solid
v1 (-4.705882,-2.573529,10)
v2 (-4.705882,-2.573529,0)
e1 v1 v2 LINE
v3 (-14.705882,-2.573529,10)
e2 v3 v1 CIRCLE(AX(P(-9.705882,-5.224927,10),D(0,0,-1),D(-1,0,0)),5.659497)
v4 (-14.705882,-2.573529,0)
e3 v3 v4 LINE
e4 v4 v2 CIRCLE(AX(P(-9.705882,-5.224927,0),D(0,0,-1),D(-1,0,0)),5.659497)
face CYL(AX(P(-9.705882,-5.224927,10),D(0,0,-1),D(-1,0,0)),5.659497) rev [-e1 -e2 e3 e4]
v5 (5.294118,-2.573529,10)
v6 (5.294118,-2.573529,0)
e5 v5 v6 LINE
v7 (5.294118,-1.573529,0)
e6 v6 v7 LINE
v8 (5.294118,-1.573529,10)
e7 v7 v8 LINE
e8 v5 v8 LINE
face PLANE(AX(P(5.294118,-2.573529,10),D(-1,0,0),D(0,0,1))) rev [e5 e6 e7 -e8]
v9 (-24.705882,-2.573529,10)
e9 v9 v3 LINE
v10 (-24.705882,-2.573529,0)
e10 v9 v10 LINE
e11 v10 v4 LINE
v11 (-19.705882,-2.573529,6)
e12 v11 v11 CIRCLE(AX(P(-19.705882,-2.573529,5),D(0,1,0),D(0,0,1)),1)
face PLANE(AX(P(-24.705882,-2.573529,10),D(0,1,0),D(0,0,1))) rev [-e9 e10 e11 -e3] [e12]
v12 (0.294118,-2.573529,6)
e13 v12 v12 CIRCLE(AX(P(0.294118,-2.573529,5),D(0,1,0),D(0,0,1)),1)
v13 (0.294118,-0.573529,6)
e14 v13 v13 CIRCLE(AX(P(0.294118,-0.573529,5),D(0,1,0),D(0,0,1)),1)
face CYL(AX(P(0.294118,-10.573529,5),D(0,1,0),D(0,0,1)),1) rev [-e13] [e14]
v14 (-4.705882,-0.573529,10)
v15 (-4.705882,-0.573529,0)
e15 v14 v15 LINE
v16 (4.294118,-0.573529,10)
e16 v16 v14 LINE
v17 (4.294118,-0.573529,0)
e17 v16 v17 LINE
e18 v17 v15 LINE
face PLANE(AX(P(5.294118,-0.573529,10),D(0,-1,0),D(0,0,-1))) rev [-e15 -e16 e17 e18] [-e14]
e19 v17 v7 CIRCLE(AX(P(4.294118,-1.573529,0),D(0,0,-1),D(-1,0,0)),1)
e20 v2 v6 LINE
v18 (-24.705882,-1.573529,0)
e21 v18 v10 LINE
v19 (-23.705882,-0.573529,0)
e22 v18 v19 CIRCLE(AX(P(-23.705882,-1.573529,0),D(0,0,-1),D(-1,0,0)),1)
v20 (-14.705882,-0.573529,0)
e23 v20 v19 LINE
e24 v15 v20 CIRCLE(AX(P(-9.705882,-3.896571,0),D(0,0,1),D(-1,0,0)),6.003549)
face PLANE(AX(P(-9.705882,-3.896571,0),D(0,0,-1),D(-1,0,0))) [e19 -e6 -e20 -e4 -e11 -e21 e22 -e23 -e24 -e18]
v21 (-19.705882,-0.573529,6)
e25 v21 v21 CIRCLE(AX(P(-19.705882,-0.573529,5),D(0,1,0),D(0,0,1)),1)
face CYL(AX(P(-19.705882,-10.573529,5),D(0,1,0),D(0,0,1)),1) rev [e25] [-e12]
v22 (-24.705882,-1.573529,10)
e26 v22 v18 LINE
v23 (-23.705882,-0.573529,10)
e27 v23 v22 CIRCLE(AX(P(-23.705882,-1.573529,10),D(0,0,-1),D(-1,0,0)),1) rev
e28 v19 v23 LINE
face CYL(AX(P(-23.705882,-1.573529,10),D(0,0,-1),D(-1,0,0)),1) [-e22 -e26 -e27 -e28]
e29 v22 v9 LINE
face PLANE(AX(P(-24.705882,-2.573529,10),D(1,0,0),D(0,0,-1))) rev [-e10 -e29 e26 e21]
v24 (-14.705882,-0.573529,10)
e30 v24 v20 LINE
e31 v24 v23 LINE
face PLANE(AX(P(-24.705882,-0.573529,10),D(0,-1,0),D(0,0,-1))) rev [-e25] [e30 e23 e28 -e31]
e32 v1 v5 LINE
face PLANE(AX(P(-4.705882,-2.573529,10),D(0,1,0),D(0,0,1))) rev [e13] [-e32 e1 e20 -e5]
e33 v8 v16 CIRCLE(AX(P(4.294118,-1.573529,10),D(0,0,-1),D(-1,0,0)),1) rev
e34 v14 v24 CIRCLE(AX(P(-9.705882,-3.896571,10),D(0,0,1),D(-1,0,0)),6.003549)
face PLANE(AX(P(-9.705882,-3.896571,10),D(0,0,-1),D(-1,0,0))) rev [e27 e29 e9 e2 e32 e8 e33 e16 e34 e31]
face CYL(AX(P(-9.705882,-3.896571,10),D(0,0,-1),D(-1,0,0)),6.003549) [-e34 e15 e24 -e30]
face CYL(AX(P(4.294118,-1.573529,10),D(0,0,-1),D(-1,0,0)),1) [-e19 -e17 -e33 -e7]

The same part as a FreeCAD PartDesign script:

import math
import FreeCAD as App
import Part
import Sketcher

V = App.Vector


def edges_at(feature, points):
    """Names of the edges that pass closest to the given points."""
    edges = feature.Shape.Edges
    near = lambda p: min(range(len(edges)), key=lambda i: edges[i].distToShape(Part.Vertex(*p))[0])
    return sorted({f"Edge{near(p) + 1}" for p in points})

doc = App.newDocument("Part")
body = doc.addObject("PartDesign::Body", "Body")

# Sketch on XY plane
sketch1 = body.newObject("Sketcher::SketchObject", "Sketch")
sketch1.AttachmentSupport = (doc.getObject("XY_Plane"), [""])
sketch1.MapMode = "FlatFace"
sketch1.addGeometry([
    Part.LineSegment(V(-24.705882, -2.573529, 0), V(-14.705882, -2.573529, 0)),  # 0
    Part.ArcOfCircle(Part.Circle(V(-9.705882, -5.224927, 0), V(0, 0, 1), 5.659497), math.radians(27.936087), math.radians(152.063913)),  # 1
    Part.LineSegment(V(-4.705882, -2.573529, 0), V(5.294118, -2.573529, 0)),  # 2
    Part.LineSegment(V(5.294118, -2.573529, 0), V(5.294118, -0.573529, 0)),  # 3
    Part.LineSegment(V(5.294118, -0.573529, 0), V(-4.705882, -0.573529, 0)),  # 4
    Part.ArcOfCircle(Part.Circle(V(-9.705882, -3.896571, 0), V(0, 0, 1), 6.003549), math.radians(33.608343), math.radians(146.391657)),  # 5
    Part.LineSegment(V(-14.705882, -0.573529, 0), V(-24.705882, -0.573529, 0)),  # 6
    Part.LineSegment(V(-24.705882, -0.573529, 0), V(-24.705882, -2.573529, 0)),  # 7
], False)
sketch1.addConstraint([
    Sketcher.Constraint("Coincident", 0, 2, 1, 2),
    Sketcher.Constraint("Coincident", 1, 1, 2, 1),
    Sketcher.Constraint("Coincident", 2, 2, 3, 1),
    Sketcher.Constraint("Coincident", 3, 2, 4, 1),
    Sketcher.Constraint("Coincident", 4, 2, 5, 1),
    Sketcher.Constraint("Coincident", 5, 2, 6, 1),
    Sketcher.Constraint("Coincident", 6, 2, 7, 1),
    Sketcher.Constraint("Coincident", 7, 2, 0, 1),
    Sketcher.Constraint("Horizontal", 0),
    Sketcher.Constraint("Horizontal", 2),
    Sketcher.Constraint("Vertical", 3),
    Sketcher.Constraint("Horizontal", 4),
    Sketcher.Constraint("Horizontal", 6),
    Sketcher.Constraint("Vertical", 7),
    Sketcher.Constraint("Horizontal", 0, 2, 1, 1),
    Sketcher.Constraint("Horizontal", 4, 2, 5, 2),
    Sketcher.Constraint("Vertical", 1, 3, 5, 3),
    Sketcher.Constraint("Vertical", 1, 1, 4, 2),
    Sketcher.Constraint("Equal", 0, 2),
    Sketcher.Constraint("DistanceX", 0, 1, 0, 2, 10.0),
    Sketcher.Constraint("DistanceY", 3, 1, 3, 2, 2.0),
    Sketcher.Constraint("DistanceX", 0, 2, 5, 3, 5.0),
    Sketcher.Constraint("Radius", 5, 6.003549),
    Sketcher.Constraint("Radius", 1, 5.659497),
    Sketcher.Constraint("DistanceY", 5, 3, -1, 1, 3.896571),
    Sketcher.Constraint("DistanceX", 1, 3, -1, 1, 9.705882),
])
pad1 = body.newObject("PartDesign::Pad", "Pad")
pad1.Profile = sketch1
pad1.Length = 10

# Sketch on XZ plane
sketch2 = body.newObject("Sketcher::SketchObject", "Sketch001")
sketch2.AttachmentSupport = (doc.getObject("XZ_Plane"), [""])
sketch2.MapMode = "FlatFace"
sketch2.AttachmentOffset = App.Placement(V(0, 0, 0.573529), App.Rotation())
sketch2.addGeometry([
    Part.Circle(V(0.294118, 5, 0), V(0, 0, 1), 1),
    Part.Circle(V(-19.705882, 5, 0), V(0, 0, 1), 1),
], False)
sketch2.addConstraint([
    Sketcher.Constraint("Equal", 0, 1),
    Sketcher.Constraint("Horizontal", 0, 3, 1, 3),
    Sketcher.Constraint("Diameter", 0, 2.0),
    Sketcher.Constraint("DistanceY", -1, 1, 0, 3, 5.0),
    Sketcher.Constraint("DistanceX", 1, 3, 0, 3, 20.0),
    Sketcher.Constraint("DistanceX", -1, 1, 0, 3, 0.294118),
])
pocket1 = body.newObject("PartDesign::Pocket", "Pocket")
pocket1.Profile = sketch2
pocket1.Length = 10
pocket1.Reversed = True
doc.recompute()

fillet = body.newObject("PartDesign::Fillet", "Fillet")
fillet.Base = (pocket1, edges_at(pocket1, [(-24.706, -0.574, 5), (5.294, -0.574, 5)]))
fillet.Radius = 1

doc.recompute()
